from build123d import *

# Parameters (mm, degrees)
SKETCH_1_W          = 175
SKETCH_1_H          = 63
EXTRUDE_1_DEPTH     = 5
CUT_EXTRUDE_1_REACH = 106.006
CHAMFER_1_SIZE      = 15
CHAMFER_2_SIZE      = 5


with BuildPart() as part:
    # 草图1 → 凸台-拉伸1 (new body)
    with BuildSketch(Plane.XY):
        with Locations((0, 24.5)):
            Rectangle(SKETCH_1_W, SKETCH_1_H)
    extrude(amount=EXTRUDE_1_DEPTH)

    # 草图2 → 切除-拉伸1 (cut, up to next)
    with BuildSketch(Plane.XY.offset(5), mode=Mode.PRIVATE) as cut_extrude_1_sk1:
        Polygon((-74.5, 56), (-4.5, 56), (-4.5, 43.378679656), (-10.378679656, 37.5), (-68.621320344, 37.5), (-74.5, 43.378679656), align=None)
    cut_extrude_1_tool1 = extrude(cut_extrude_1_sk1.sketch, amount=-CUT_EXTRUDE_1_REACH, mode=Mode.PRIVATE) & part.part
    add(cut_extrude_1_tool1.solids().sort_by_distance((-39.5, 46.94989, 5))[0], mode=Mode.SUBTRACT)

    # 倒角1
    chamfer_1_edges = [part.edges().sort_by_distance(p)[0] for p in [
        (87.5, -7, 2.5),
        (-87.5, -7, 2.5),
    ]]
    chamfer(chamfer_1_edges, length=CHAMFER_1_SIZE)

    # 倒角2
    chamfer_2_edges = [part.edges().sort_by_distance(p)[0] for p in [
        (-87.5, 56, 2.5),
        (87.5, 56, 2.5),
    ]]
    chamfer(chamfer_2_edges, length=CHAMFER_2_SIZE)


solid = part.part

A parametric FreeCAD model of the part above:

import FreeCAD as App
import Part
import Sketcher
from FreeCAD import Vector


def edges_at(feature, points):
    """Names of the edges that pass closest to the given points."""
    edges = feature.Shape.Edges
    near = lambda p: min(range(len(edges)), key=lambda i: edges[i].distToShape(Part.Vertex(*p))[0])
    return sorted({f"Edge{near(p) + 1}" for p in points})

doc = App.newDocument("Part")
body = doc.addObject("PartDesign::Body", "Body")

# Sketch on XY plane
sketch1 = body.newObject("Sketcher::SketchObject", "Sketch")
sketch1.AttachmentSupport = (doc.getObject("XY_Plane"), [""])
sketch1.MapMode = "FlatFace"
sketch1.addGeometry(Part.LineSegment(Vector(-88, 56, 0), Vector(-88, -7, 0)), False)
sketch1.addGeometry(Part.LineSegment(Vector(-88, -7, 0), Vector(88, -7, 0)), False)
sketch1.addGeometry(Part.LineSegment(Vector(88, -7, 0), Vector(88, 56, 0)), False)
sketch1.addGeometry(Part.LineSegment(Vector(88, 56, 0), Vector(-88, 56, 0)), False)
sketch1.addConstraint(Sketcher.Constraint("Coincident", 0, 2, 1, 1))
sketch1.addConstraint(Sketcher.Constraint("Coincident", 1, 2, 2, 1))
sketch1.addConstraint(Sketcher.Constraint("Coincident", 2, 2, 3, 1))
sketch1.addConstraint(Sketcher.Constraint("Coincident", 3, 2, 0, 1))
sketch1.addConstraint(Sketcher.Constraint("Vertical", 0))
sketch1.addConstraint(Sketcher.Constraint("Horizontal", 1))
sketch1.addConstraint(Sketcher.Constraint("Vertical", 2))
sketch1.addConstraint(Sketcher.Constraint("Horizontal", 3))
sketch1.addConstraint(Sketcher.Constraint("DistanceX", 1, 1, 1, 2, 175.0))
sketch1.addConstraint(Sketcher.Constraint("DistanceY", 0, 2, 0, 1, 63.0))
sketch1.addConstraint(Sketcher.Constraint("DistanceY", 0, 2, -1, 1, 7.0))
sketch1.addConstraint(Sketcher.Constraint("DistanceX", 0, 2, -1, 1, 87.5))
pad1 = body.newObject("PartDesign::Pad", "Pad")
pad1.Profile = sketch1
pad1.Length = 5

# Sketch on XY plane
sketch2 = body.newObject("Sketcher::SketchObject", "Sketch001")
sketch2.AttachmentSupport = (doc.getObject("XY_Plane"), [""])
sketch2.MapMode = "FlatFace"
sketch2.AttachmentOffset = App.Placement(Vector(0, 0, 5), App.Rotation())
sketch2.addGeometry(Part.LineSegment(Vector(-4, 56, 0), Vector(-74, 56, 0)), False)
sketch2.addGeometry(Part.LineSegment(Vector(-74, 56, 0), Vector(-74, 43, 0)), False)
sketch2.addGeometry(Part.LineSegment(Vector(-74, 43, 0), Vector(-69, 38, 0)), False)
sketch2.addGeometry(Part.LineSegment(Vector(-69, 38, 0), Vector(-10, 38, 0)), False)
sketch2.addGeometry(Part.LineSegment(Vector(-10, 38, 0), Vector(-4, 43, 0)), False)
sketch2.addGeometry(Part.LineSegment(Vector(-4, 43, 0), Vector(-4, 56, 0)), False)
sketch2.addConstraint(Sketcher.Constraint("Coincident", 0, 2, 1, 1))
sketch2.addConstraint(Sketcher.Constraint("Coincident", 1, 2, 2, 1))
sketch2.addConstraint(Sketcher.Constraint("Coincident", 2, 2, 3, 1))
sketch2.addConstraint(Sketcher.Constraint("Coincident", 3, 2, 4, 1))
sketch2.addConstraint(Sketcher.Constraint("Coincident", 4, 2, 5, 1))
sketch2.addConstraint(Sketcher.Constraint("Coincident", 5, 2, 0, 1))
sketch2.addConstraint(Sketcher.Constraint("Horizontal", 0))
sketch2.addConstraint(Sketcher.Constraint("Vertical", 1))
sketch2.addConstraint(Sketcher.Constraint("Horizontal", 3))
sketch2.addConstraint(Sketcher.Constraint("Vertical", 5))
sketch2.addConstraint(Sketcher.Constraint("Perpendicular", 2, 4))
sketch2.addConstraint(Sketcher.Constraint("Horizontal", 1, 2, 4, 2))
sketch2.addConstraint(Sketcher.Constraint("Equal", 2, 4))
sketch2.addConstraint(Sketcher.Constraint("DistanceX", 0, 2, 0, 1, 70.0))
sketch2.addConstraint(Sketcher.Constraint("DistanceY", -1, 1, 0, 2, 56.0))
sketch2.addConstraint(Sketcher.Constraint("DistanceX", 0, 2, -1, 1, 74.5))
sketch2.addConstraint(Sketcher.Constraint("DistanceY", -1, 1, 2, 2, 37.5))
sketch2.addConstraint(Sketcher.Constraint("DistanceX", 3, 1, 3, 2, 58.242641))
pocket1 = body.newObject("PartDesign::Pocket", "Pocket")
pocket1.Profile = sketch2
pocket1.Type = "UpToFirst"
doc.recompute()

chamfer = body.newObject("PartDesign::Chamfer", "Chamfer")
chamfer.Base = (pocket1, edges_at(pocket1, [(87.5, -7, 2.5), (-87.5, -7, 2.5)]))
chamfer.Size = 15
doc.recompute()

chamfer2 = body.newObject("PartDesign::Chamfer", "Chamfer001")
chamfer2.Base = (chamfer, edges_at(chamfer, [(-87.5, 56, 2.5), (87.5, 56, 2.5)]))
chamfer2.Size = 5

doc.recompute()
